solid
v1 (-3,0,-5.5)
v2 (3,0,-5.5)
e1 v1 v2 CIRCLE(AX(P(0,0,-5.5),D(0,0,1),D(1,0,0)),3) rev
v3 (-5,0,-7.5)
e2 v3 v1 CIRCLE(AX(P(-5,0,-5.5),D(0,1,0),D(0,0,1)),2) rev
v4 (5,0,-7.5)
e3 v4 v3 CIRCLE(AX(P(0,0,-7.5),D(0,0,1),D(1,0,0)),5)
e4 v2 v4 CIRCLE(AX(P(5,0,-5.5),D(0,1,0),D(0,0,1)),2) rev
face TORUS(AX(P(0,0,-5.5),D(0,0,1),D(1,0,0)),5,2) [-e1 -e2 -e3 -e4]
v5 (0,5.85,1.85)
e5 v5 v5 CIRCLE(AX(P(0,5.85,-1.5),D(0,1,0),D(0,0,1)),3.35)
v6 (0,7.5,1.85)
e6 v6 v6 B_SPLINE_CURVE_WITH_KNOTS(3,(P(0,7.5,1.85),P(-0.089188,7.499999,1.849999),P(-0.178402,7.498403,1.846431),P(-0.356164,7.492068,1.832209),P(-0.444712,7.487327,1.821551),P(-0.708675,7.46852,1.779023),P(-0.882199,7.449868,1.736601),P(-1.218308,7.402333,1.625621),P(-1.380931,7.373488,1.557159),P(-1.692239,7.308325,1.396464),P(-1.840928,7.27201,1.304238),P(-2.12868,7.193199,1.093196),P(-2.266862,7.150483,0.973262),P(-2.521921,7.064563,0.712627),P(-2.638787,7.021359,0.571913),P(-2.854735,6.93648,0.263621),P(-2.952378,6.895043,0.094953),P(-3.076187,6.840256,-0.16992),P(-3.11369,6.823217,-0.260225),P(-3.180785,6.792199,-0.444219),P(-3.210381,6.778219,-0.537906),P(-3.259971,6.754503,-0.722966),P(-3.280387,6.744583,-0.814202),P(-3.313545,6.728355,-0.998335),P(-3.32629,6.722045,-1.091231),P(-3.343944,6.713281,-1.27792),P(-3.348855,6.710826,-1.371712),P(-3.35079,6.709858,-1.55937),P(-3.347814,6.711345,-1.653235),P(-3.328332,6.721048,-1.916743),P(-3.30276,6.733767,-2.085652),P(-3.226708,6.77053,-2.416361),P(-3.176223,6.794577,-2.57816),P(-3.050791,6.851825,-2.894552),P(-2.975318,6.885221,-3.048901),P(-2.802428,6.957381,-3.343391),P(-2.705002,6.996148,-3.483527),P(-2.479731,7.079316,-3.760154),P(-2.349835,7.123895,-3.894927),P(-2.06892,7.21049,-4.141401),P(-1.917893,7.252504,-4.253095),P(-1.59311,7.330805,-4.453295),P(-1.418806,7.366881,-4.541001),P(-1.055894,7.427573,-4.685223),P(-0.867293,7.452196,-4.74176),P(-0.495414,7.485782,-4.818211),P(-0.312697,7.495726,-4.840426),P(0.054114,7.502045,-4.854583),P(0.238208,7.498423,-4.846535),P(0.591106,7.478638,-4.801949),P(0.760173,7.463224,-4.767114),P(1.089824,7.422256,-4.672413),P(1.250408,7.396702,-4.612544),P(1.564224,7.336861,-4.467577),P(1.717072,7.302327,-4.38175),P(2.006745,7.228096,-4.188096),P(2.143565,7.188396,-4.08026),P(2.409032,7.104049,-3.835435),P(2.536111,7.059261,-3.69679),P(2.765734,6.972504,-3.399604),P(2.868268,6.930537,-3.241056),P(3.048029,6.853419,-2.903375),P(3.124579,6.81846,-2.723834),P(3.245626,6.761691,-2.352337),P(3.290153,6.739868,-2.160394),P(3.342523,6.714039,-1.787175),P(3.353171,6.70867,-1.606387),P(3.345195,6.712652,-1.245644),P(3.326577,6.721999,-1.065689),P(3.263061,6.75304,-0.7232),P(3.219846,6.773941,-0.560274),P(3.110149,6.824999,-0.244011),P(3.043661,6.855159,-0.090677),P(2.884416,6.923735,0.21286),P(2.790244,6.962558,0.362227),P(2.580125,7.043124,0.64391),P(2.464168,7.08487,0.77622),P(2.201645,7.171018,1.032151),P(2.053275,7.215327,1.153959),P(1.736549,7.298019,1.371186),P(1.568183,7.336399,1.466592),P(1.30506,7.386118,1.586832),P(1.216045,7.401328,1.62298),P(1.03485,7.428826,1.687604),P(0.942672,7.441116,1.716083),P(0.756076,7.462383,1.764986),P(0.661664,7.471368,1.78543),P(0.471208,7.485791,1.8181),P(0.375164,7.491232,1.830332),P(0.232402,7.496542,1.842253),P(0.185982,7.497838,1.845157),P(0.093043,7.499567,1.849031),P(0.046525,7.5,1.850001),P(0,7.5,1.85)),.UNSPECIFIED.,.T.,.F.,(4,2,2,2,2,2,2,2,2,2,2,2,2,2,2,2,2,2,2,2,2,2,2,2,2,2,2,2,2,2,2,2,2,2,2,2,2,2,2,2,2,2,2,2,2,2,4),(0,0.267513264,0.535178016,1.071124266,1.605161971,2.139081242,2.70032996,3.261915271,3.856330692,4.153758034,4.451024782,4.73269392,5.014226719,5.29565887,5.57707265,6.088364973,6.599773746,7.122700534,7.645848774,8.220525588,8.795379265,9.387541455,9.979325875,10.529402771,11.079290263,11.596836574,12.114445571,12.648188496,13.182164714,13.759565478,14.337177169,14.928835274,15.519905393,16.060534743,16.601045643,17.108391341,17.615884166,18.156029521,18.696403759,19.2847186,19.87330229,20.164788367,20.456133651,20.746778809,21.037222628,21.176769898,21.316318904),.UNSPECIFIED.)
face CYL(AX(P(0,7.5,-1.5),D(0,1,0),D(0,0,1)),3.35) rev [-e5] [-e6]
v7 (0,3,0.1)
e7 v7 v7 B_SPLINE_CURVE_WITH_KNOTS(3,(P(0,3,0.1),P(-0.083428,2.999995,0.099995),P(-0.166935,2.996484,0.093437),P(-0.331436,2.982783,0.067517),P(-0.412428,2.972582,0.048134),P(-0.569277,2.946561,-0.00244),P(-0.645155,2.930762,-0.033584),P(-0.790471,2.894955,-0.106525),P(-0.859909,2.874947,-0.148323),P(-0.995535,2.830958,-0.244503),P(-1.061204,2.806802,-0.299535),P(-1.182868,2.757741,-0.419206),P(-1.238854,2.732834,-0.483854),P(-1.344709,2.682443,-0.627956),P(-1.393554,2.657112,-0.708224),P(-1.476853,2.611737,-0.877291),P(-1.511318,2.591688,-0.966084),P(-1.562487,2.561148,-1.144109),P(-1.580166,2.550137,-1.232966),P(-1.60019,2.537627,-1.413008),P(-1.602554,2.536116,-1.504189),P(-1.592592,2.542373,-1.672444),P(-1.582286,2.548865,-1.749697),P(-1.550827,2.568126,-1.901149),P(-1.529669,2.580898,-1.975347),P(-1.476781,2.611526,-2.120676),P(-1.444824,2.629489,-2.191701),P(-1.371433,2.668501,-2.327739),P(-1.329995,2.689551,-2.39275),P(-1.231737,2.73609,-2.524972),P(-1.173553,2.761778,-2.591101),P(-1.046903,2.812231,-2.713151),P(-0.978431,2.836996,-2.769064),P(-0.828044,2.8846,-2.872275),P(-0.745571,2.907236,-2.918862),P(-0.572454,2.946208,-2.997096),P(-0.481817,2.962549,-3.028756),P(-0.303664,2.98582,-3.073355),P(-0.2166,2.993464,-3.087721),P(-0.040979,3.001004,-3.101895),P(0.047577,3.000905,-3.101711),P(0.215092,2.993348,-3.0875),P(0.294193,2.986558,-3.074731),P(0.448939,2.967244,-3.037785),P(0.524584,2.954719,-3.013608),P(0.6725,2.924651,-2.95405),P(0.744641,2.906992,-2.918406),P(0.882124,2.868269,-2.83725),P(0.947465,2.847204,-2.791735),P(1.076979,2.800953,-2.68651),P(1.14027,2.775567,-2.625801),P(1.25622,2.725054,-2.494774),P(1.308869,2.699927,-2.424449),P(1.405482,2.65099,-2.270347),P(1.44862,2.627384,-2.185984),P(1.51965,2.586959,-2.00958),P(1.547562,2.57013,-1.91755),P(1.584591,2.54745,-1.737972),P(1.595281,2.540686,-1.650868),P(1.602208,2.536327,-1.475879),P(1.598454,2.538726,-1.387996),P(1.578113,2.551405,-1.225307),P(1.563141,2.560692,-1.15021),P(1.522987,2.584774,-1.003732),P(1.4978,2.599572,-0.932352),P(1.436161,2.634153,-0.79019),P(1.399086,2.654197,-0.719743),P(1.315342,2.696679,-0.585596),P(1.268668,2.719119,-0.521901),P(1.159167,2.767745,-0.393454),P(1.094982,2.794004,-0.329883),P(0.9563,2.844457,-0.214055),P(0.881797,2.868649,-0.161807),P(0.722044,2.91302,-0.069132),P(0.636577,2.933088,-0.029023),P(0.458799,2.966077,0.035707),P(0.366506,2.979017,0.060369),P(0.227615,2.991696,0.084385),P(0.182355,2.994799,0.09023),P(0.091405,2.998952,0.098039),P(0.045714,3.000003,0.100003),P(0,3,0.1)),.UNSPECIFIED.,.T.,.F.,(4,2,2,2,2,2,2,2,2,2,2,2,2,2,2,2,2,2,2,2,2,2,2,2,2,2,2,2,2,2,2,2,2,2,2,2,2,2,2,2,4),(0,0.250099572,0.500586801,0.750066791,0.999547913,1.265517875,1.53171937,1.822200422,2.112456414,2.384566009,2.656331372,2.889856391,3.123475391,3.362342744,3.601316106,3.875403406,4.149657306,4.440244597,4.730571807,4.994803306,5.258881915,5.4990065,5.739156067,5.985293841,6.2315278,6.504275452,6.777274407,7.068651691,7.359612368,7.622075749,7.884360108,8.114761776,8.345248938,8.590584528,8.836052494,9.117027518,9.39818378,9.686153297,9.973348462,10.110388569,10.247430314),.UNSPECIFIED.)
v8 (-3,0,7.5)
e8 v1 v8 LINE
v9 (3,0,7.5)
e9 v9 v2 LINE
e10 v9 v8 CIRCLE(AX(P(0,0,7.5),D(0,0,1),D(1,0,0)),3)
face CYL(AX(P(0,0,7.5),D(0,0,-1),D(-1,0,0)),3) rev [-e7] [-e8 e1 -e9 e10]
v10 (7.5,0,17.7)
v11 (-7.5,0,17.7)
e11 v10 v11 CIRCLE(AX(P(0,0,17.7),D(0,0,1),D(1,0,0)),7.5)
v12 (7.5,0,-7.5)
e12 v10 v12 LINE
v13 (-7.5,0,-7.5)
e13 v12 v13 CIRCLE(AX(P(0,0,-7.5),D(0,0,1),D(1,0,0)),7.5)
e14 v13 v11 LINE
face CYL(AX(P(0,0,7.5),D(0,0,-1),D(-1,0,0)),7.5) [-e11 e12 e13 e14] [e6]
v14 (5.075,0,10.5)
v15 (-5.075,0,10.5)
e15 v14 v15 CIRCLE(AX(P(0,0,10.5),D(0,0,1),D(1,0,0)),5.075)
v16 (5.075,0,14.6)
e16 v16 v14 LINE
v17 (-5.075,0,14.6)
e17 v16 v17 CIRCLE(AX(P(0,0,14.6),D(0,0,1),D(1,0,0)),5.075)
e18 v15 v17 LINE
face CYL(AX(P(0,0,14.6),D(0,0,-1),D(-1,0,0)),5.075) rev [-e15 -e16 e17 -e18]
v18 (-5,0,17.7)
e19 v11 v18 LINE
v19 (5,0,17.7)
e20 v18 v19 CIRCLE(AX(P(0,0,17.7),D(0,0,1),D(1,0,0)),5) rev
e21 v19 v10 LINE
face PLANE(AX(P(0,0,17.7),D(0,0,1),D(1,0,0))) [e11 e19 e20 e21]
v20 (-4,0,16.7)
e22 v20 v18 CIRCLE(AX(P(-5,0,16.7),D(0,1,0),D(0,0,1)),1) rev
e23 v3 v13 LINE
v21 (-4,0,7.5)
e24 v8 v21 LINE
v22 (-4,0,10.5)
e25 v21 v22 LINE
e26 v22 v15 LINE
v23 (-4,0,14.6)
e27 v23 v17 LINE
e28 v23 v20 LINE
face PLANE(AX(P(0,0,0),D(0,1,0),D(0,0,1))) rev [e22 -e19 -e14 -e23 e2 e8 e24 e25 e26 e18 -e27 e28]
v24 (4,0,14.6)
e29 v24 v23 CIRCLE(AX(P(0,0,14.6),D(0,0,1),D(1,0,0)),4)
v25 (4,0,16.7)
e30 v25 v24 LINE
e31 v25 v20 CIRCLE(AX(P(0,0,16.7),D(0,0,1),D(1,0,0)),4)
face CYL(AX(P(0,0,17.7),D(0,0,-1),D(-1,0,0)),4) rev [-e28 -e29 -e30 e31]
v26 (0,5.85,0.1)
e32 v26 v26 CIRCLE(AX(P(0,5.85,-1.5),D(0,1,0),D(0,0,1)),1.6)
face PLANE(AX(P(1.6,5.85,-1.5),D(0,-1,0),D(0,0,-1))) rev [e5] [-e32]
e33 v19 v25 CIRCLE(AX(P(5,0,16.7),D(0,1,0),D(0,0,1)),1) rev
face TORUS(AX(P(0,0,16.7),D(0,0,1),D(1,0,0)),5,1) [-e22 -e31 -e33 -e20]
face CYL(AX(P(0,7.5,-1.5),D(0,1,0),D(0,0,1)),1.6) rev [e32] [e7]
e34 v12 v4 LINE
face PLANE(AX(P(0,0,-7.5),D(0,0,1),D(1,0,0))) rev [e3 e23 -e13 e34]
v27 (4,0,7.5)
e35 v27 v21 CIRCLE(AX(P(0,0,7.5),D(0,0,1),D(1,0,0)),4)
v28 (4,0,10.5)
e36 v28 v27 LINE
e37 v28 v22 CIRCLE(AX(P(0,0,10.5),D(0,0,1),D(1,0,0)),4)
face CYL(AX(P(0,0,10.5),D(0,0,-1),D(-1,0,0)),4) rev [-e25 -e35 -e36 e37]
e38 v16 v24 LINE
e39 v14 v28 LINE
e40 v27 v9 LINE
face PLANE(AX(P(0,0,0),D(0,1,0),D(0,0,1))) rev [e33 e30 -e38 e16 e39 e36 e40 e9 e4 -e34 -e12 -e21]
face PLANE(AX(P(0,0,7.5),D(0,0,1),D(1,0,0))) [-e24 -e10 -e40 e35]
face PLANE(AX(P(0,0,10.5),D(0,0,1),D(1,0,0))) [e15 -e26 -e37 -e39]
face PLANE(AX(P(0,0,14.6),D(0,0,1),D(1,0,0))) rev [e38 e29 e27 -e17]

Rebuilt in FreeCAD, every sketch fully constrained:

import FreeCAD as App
import Part
import Sketcher
Q = App.Units.Quantity


def edges_at(feature, points):
    """Names of the edges that pass closest to the given points."""
    edges = feature.Shape.Edges
    near = lambda p: min(range(len(edges)), key=lambda i: edges[i].distToShape(Part.Vertex(*p))[0])
    return sorted({f"Edge{near(p) + 1}" for p in points})

doc = App.newDocument("Part")
body = doc.addObject("PartDesign::Body", "Body")

# Sketch on XY plane
sketch1 = body.newObject("Sketcher::SketchObject", "Sketch")
sketch1.AttachmentSupport = (doc.getObject("XY_Plane"), [""])
sketch1.MapMode = "FlatFace"
sketch1.addGeometry([
    Part.Circle(App.Vector(0, 0, 0), App.Vector(0, 0, 1), 7.5),
    Part.Circle(App.Vector(0, 0, 0), App.Vector(0, 0, 1), 3),
], False)
sketch1.addConstraint([
    Sketcher.Constraint("Coincident", 0, 3, -1, 1),
    Sketcher.Constraint("Coincident", 1, 3, -1, 1),
    Sketcher.Constraint("Diameter", 0, Q("15 mm")),
    Sketcher.Constraint("Diameter", 1, Q("6 mm")),
])
pad1 = body.newObject("PartDesign::Pad", "Pad")
pad1.Profile = sketch1
pad1.Length = 15
pad1.Midplane = True

# Sketch on XY plane
sketch2 = body.newObject("Sketcher::SketchObject", "Sketch001")
sketch2.AttachmentSupport = (doc.getObject("XY_Plane"), [""])
sketch2.MapMode = "FlatFace"
sketch2.AttachmentOffset = App.Placement(App.Vector(0, 0, 7.5), App.Rotation())
sketch2.addGeometry([
    Part.Circle(App.Vector(0, 0, 0), App.Vector(0, 0, 1), 7.5),
    Part.Circle(App.Vector(0, 0, 0), App.Vector(0, 0, 1), 3),
], False)
sketch2.addConstraint([
    Sketcher.Constraint("Coincident", 0, 3, -1, 1),
    Sketcher.Constraint("Coincident", 1, 3, -1, 1),
    Sketcher.Constraint("Diameter", 0, Q("15 mm")),
    Sketcher.Constraint("Diameter", 1, Q("6 mm")),
])
pad2 = body.newObject("PartDesign::Pad", "Pad001")
pad2.Profile = sketch2
pad2.Length = 1
pad2.Reversed = True

# Sketch on XY plane
sketch3 = body.newObject("Sketcher::SketchObject", "Sketch002")
sketch3.AttachmentSupport = (doc.getObject("XY_Plane"), [""])
sketch3.MapMode = "FlatFace"
sketch3.AttachmentOffset = App.Placement(App.Vector(0, 0, 7.5), App.Rotation())
sketch3.addGeometry([
    Part.Circle(App.Vector(0, 0, 0), App.Vector(0, 0, 1), 7.5),
    Part.Circle(App.Vector(0, 0, 0), App.Vector(0, 0, 1), 4),
], False)
sketch3.addConstraint([
    Sketcher.Constraint("Coincident", 0, 3, -1, 1),
    Sketcher.Constraint("Coincident", 1, 3, -1, 1),
    Sketcher.Constraint("Diameter", 0, Q("15 mm")),
    Sketcher.Constraint("Diameter", 1, Q("8 mm")),
])
pad3 = body.newObject("PartDesign::Pad", "Pad002")
pad3.Profile = sketch3
pad3.Length = 3

# Sketch on XY plane
sketch4 = body.newObject("Sketcher::SketchObject", "Sketch003")
sketch4.AttachmentSupport = (doc.getObject("XY_Plane"), [""])
sketch4.MapMode = "FlatFace"
sketch4.AttachmentOffset = App.Placement(App.Vector(0, 0, 10.5), App.Rotation())
sketch4.addGeometry([
    Part.Circle(App.Vector(0, 0, 0), App.Vector(0, 0, 1), 7.5),
    Part.Circle(App.Vector(0, 0, 0), App.Vector(0, 0, 1), 5.075),
], False)
sketch4.addConstraint([
    Sketcher.Constraint("Coincident", 0, 3, -1, 1),
    Sketcher.Constraint("Coincident", 1, 3, -1, 1),
    Sketcher.Constraint("Diameter", 0, Q("15 mm")),
    Sketcher.Constraint("Diameter", 1, Q("10.15 mm")),
])
pad4 = body.newObject("PartDesign::Pad", "Pad003")
pad4.Profile = sketch4
pad4.Length = 4.1

# Sketch on XY plane
sketch5 = body.newObject("Sketcher::SketchObject", "Sketch004")
sketch5.AttachmentSupport = (doc.getObject("XY_Plane"), [""])
sketch5.MapMode = "FlatFace"
sketch5.AttachmentOffset = App.Placement(App.Vector(0, 0, 14.6), App.Rotation())
sketch5.addGeometry([
    Part.Circle(App.Vector(0, 0, 0), App.Vector(0, 0, 1), 7.5),
    Part.Circle(App.Vector(0, 0, 0), App.Vector(0, 0, 1), 4),
], False)
sketch5.addConstraint([
    Sketcher.Constraint("Coincident", 0, 3, -1, 1),
    Sketcher.Constraint("Coincident", 1, 3, -1, 1),
    Sketcher.Constraint("Diameter", 0, Q("15 mm")),
    Sketcher.Constraint("Diameter", 1, Q("8 mm")),
])
pad5 = body.newObject("PartDesign::Pad", "Pad004")
pad5.Profile = sketch5
pad5.Length = 3.1

# Sketch on XZ plane
sketch6 = body.newObject("Sketcher::SketchObject", "Sketch005")
sketch6.AttachmentSupport = (doc.getObject("XZ_Plane"), [""])
sketch6.MapMode = "FlatFace"
sketch6.AttachmentOffset = App.Placement(App.Vector(0, 0, -7.5), App.Rotation())
sketch6.addGeometry(Part.Circle(App.Vector(0, -1.5, 0), App.Vector(0, 0, 1), 1.6), False)
sketch6.addConstraint([
    Sketcher.Constraint("PointOnObject", 0, 3, -2),
    Sketcher.Constraint("Diameter", 0, Q("3.2 mm")),
    Sketcher.Constraint("DistanceY", 0, 3, -1, 1, Q("1.5 mm")),
])
doc.recompute()
hole = body.newObject("PartDesign::Hole", "Hole")
hole.Profile = sketch6
hole.ThreadType = "None"
hole.Diameter = 3.2
hole.DepthType = "Dimension"
hole.Depth = 10
hole.DrillPoint = "Angled"
hole.DrillPointAngle = 118
hole.HoleCutType = "Counterbore"
hole.HoleCutDiameter = 6.7
hole.HoleCutDepth = 1.65
hole.Reversed = True

# Sketch on XZ plane
sketch7 = body.newObject("Sketcher::SketchObject", "Sketch006")
sketch7.AttachmentSupport = (doc.getObject("XZ_Plane"), [""])
sketch7.MapMode = "FlatFace"
sketch7.addGeometry([
    Part.LineSegment(App.Vector(-7.5, -7.5, 0), App.Vector(-7.5, 17.7, 0)),
    Part.LineSegment(App.Vector(-7.5, 17.7, 0), App.Vector(7.5, 17.7, 0)),
    Part.LineSegment(App.Vector(7.5, 17.7, 0), App.Vector(7.5, -7.5, 0)),
    Part.LineSegment(App.Vector(7.5, -7.5, 0), App.Vector(-7.5, -7.5, 0)),
], False)
sketch7.addConstraint([
    Sketcher.Constraint("Coincident", 0, 2, 1, 1),
    Sketcher.Constraint("Coincident", 1, 2, 2, 1),
    Sketcher.Constraint("Coincident", 2, 2, 3, 1),
    Sketcher.Constraint("Coincident", 3, 2, 0, 1),
    Sketcher.Constraint("Vertical", 0),
    Sketcher.Constraint("Horizontal", 1),
    Sketcher.Constraint("Vertical", 2),
    Sketcher.Constraint("Horizontal", 3),
    Sketcher.Constraint("DistanceX", 1, 1, 1, 2, Q("15 mm")),
    Sketcher.Constraint("DistanceY", 0, 1, 0, 2, Q("25.2 mm")),
    Sketcher.Constraint("DistanceX", 0, 2, -1, 1, Q("7.5 mm")),
    Sketcher.Constraint("DistanceY", -1, 1, 0, 2, Q("17.7 mm")),
])
pocket1 = body.newObject("PartDesign::Pocket", "Pocket")
pocket1.Profile = sketch7
pocket1.Type = "ThroughAll"
pocket1.Reversed = True
doc.recompute()

fillet = body.newObject("PartDesign::Fillet", "Fillet")
fillet.Base = (pocket1, edges_at(pocket1, [(0, 4, 17.7)]))
fillet.Radius = 1
doc.recompute()

fillet2 = body.newObject("PartDesign::Fillet", "Fillet001")
fillet2.Base = (fillet, edges_at(fillet, [(0, 3, -7.5)]))
fillet2.Radius = 2

doc.recompute()
